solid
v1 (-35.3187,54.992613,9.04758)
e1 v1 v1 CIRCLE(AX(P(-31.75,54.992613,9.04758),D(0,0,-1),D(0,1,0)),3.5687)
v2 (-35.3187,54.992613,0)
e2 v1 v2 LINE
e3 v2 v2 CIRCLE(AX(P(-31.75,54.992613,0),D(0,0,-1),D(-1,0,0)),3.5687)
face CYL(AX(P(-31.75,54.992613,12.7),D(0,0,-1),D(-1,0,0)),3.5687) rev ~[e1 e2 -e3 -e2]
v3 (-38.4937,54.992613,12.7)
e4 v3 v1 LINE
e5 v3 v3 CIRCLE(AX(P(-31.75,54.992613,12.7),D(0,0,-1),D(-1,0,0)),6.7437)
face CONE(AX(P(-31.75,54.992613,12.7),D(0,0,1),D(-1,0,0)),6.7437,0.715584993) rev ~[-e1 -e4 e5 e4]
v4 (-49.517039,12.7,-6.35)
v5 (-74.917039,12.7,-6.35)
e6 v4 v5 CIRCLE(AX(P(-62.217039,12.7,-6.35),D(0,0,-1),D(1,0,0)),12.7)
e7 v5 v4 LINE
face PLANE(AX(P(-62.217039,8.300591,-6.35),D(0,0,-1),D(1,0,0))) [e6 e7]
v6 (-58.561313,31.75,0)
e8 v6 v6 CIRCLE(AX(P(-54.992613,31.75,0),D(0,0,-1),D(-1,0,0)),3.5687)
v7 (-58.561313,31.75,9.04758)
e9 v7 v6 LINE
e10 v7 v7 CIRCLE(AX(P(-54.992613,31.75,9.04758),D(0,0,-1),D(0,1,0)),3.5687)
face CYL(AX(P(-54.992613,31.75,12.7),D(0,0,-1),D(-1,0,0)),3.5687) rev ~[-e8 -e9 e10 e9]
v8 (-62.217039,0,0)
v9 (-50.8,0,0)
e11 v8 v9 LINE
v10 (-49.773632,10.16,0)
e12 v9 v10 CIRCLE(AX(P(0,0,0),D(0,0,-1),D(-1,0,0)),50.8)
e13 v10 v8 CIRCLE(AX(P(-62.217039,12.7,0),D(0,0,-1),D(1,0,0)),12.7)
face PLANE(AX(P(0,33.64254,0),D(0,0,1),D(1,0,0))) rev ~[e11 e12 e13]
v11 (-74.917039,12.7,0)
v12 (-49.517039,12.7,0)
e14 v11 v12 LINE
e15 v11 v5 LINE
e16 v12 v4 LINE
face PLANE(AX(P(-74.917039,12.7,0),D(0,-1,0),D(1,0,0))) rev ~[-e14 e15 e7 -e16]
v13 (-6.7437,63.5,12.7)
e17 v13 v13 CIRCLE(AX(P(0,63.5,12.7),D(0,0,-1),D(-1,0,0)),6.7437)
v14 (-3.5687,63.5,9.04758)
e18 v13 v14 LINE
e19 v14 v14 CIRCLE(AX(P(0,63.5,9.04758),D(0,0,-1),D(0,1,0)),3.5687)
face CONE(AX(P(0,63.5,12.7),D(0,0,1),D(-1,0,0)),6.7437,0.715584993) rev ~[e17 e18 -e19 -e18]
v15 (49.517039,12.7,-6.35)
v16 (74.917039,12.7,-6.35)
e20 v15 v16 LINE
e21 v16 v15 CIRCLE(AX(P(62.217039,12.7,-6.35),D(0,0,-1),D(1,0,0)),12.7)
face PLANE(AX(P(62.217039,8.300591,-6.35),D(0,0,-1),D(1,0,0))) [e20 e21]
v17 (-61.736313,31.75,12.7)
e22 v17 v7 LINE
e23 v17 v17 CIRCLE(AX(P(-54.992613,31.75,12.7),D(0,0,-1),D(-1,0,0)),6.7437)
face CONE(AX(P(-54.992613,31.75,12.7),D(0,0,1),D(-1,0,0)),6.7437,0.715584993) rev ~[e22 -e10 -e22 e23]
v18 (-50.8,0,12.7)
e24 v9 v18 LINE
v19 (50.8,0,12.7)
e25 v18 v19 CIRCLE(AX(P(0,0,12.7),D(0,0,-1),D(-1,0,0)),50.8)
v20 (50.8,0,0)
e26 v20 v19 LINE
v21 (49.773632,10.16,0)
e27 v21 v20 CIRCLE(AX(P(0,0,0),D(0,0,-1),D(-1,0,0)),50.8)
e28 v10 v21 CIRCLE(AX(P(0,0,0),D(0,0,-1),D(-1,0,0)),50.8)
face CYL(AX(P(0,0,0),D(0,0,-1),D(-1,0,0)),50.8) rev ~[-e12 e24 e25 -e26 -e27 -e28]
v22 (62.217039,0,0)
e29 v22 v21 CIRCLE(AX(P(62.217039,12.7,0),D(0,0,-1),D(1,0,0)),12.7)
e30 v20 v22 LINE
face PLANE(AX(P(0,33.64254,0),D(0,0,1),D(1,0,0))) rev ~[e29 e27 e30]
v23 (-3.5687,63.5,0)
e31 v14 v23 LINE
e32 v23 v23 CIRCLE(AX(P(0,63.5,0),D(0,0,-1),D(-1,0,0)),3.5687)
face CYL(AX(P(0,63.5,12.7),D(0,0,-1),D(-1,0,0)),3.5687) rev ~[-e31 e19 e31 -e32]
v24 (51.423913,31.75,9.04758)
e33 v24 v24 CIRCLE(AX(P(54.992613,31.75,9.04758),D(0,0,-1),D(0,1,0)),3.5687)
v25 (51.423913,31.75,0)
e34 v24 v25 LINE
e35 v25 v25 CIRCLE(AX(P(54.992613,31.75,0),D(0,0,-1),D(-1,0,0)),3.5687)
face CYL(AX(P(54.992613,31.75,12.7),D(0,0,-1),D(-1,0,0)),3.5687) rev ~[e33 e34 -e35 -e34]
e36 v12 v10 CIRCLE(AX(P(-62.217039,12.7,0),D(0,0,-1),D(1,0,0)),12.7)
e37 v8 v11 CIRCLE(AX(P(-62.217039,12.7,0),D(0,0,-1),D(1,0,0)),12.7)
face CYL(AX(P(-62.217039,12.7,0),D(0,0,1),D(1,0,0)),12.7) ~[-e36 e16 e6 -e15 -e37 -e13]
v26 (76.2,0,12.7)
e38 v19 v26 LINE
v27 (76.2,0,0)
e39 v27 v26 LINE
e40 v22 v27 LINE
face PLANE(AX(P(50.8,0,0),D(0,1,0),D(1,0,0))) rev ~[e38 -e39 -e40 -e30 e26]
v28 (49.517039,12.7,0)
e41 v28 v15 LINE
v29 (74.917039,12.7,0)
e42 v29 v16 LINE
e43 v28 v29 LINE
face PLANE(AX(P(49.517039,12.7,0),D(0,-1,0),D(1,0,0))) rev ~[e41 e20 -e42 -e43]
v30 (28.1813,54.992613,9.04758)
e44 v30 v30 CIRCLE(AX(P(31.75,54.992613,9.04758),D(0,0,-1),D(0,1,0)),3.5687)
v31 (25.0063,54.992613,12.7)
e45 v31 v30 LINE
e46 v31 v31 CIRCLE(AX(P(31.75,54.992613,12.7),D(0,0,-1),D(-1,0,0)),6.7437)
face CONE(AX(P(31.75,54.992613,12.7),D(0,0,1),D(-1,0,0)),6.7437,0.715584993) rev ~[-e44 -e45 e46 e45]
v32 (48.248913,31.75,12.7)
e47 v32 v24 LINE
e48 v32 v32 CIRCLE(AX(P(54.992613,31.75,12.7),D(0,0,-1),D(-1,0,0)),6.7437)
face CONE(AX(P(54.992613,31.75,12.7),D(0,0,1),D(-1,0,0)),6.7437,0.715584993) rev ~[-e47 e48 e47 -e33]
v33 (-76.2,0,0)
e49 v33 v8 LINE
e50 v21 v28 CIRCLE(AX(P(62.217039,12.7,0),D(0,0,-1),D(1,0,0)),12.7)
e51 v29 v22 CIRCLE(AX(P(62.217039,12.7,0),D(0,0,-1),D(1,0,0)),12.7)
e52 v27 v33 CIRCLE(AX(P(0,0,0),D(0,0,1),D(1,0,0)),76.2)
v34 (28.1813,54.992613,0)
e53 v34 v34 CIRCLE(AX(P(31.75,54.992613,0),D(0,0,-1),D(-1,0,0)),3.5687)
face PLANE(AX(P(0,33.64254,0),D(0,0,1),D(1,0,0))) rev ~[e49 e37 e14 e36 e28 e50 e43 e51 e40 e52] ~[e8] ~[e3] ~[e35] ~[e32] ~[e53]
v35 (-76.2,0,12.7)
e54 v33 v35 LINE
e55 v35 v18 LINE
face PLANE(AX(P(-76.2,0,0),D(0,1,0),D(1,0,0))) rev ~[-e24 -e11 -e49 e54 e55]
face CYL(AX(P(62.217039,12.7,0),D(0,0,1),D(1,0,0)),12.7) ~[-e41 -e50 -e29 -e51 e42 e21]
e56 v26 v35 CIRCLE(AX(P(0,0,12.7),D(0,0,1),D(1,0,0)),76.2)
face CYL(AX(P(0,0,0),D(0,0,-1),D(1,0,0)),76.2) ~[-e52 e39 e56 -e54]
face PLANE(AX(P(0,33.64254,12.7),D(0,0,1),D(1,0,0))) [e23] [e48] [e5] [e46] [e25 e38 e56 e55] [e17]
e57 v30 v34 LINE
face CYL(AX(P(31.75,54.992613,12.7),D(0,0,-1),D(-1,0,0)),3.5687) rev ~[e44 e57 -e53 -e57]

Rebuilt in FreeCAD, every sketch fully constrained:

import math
import FreeCAD as App
import Part
import Sketcher
Q = App.Units.Quantity

doc = App.newDocument("Part")
params = doc.addObject("Spreadsheet::Sheet", "Params")
for row, (alias, value) in enumerate([
    ("sketch1_radius", "2 in"),
    ("sketch1_radius2", "3 in"),
    ("pad1_length", "0.5 in"),
    ("sketch2_radius", "0.5 in"),
    ("pad2_length", "0.25 in"),
    ("sketch3_diameter", "0.281 in"),
    ("hole_diameter", "0.281 in"),
    ("hole_csink_diameter", "0.531 in"),
], start=1):
    params.set(f"A{row}", alias)
    params.set(f"B{row}", "=" + value)
    params.setAlias(f"B{row}", alias)

body = doc.addObject("PartDesign::Body", "Body")

# Sketch on XY plane
sketch1 = body.newObject("Sketcher::SketchObject", "Sketch")
sketch1.AttachmentSupport = (doc.getObject("XY_Plane"), [""])
sketch1.MapMode = "FlatFace"
sketch1.addGeometry([
    Part.LineSegment(App.Vector(-76.2, 0, 0), App.Vector(-50.8, 0, 0)),
    Part.ArcOfCircle(Part.Circle(App.Vector(0, 0, 0), App.Vector(0, 0, 1), 50.8), math.radians(0), math.radians(180)),
    Part.LineSegment(App.Vector(50.8, 0, 0), App.Vector(76.2, 0, 0)),
    Part.ArcOfCircle(Part.Circle(App.Vector(0, 0, 0), App.Vector(0, 0, 1), 76.2), math.radians(0), math.radians(180)),
], False)
sketch1.addConstraint([
    Sketcher.Constraint("Coincident", 0, 2, 1, 2),
    Sketcher.Constraint("Coincident", 1, 1, 2, 1),
    Sketcher.Constraint("Coincident", 2, 2, 3, 1),
    Sketcher.Constraint("Coincident", 3, 2, 0, 1),
    Sketcher.Constraint("Horizontal", 0),
    Sketcher.Constraint("Horizontal", 2),
    Sketcher.Constraint("Coincident", 1, 3, -1, 1),
    Sketcher.Constraint("Coincident", 3, 3, -1, 1),
    Sketcher.Constraint("PointOnObject", 0, 2, -1),
    Sketcher.Constraint("PointOnObject", 1, 1, -1),
    Sketcher.Constraint("Radius", 1, Q("2 in")),
    Sketcher.Constraint("Radius", 3, Q("3 in")),
])
sketch1.setExpression("Constraints[10]", "Params.sketch1_radius")
sketch1.setExpression("Constraints[11]", "Params.sketch1_radius2")
pad1 = body.newObject("PartDesign::Pad", "Pad")
pad1.Profile = sketch1
pad1.setExpression("Length", "Params.pad1_length")

# Sketch on XY plane
sketch2 = body.newObject("Sketcher::SketchObject", "Sketch001")
sketch2.AttachmentSupport = (doc.getObject("XY_Plane"), [""])
sketch2.MapMode = "FlatFace"
sketch2.addGeometry([
    Part.LineSegment(App.Vector(-74.917039, 12.7, 0), App.Vector(-49.517039, 12.7, 0)),
    Part.ArcOfCircle(Part.Circle(App.Vector(-62.217039, 12.7, 0), App.Vector(0, 0, 1), 12.7), math.radians(180), math.radians(360)),
    Part.ArcOfCircle(Part.Circle(App.Vector(62.217039, 12.7, 0), App.Vector(0, 0, 1), 12.7), math.radians(180), math.radians(360)),
    Part.LineSegment(App.Vector(49.517039, 12.7, 0), App.Vector(74.917039, 12.7, 0)),
], False)
sketch2.addConstraint([
    Sketcher.Constraint("Coincident", 0, 1, 1, 1),
    Sketcher.Constraint("Coincident", 1, 2, 0, 2),
    Sketcher.Constraint("Coincident", 2, 1, 3, 1),
    Sketcher.Constraint("Coincident", 3, 2, 2, 2),
    Sketcher.Constraint("Horizontal", 0),
    Sketcher.Constraint("Horizontal", 3),
    Sketcher.Constraint("Equal", 1, 2),
    Sketcher.Constraint("Symmetric", 1, 3, 2, 3, -2),
    Sketcher.Constraint("Horizontal", 2, 3, 0, 1),
    Sketcher.Constraint("Horizontal", 1, 2, 2, 1),
    Sketcher.Constraint("Radius", 1, Q("0.5 in")),
    Sketcher.Constraint("DistanceY", -1, 1, 1, 3, Q("0.5 in")),
    Sketcher.Constraint("DistanceX", 1, 3, -1, 1, Q("62.217039 mm")),
])
sketch2.setExpression("Constraints[10]", "Params.sketch2_radius")
pad2 = body.newObject("PartDesign::Pad", "Pad001")
pad2.Profile = sketch2
pad2.setExpression("Length", "Params.pad2_length")
pad2.Reversed = True

# Sketch on XY plane
sketch3 = body.newObject("Sketcher::SketchObject", "Sketch002")
sketch3.AttachmentSupport = (doc.getObject("XY_Plane"), [""])
sketch3.MapMode = "FlatFace"
sketch3.AttachmentOffset = App.Placement(App.Vector(0, 0, 0.5 * 25.4), App.Rotation())
sketch3.addGeometry([
    Part.Circle(App.Vector(-54.992613, 31.75, 0), App.Vector(0, 0, 1), 3.5687),  # 0
    Part.Circle(App.Vector(-31.75, 54.992613, 0), App.Vector(0, 0, 1), 3.5687),  # 1
    Part.Circle(App.Vector(0, 63.5, 0), App.Vector(0, 0, 1), 3.5687),  # 2
    Part.Circle(App.Vector(31.75, 54.992613, 0), App.Vector(0, 0, 1), 3.5687),  # 3
    Part.Circle(App.Vector(54.992613, 31.75, 0), App.Vector(0, 0, 1), 3.5687),  # 4
], False)
sketch3.addConstraint([
    Sketcher.Constraint("Equal", 0, 1),
    Sketcher.Constraint("Equal", 1, 2),
    Sketcher.Constraint("Equal", 2, 3),
    Sketcher.Constraint("Equal", 3, 4),
    Sketcher.Constraint("Symmetric", 1, 3, 3, 3, -2),
    Sketcher.Constraint("Symmetric", 0, 3, 4, 3, -2),
    Sketcher.Constraint("PointOnObject", 2, 3, -2),
    Sketcher.Constraint("Diameter", 0, Q("0.281 in")),
    Sketcher.Constraint("DistanceY", -1, 1, 2, 3, Q("2.5 in")),
    Sketcher.Constraint("DistanceX", 1, 3, 3, 3, Q("2.5 in")),
    Sketcher.Constraint("DistanceY", -1, 1, 0, 3, Q("1.25 in")),
    Sketcher.Constraint("DistanceX", 0, 3, -1, 1, Q("54.992613 mm")),
    Sketcher.Constraint("DistanceY", -1, 1, 1, 3, Q("54.992613 mm")),
])
sketch3.setExpression("Constraints[7]", "Params.sketch3_diameter")
doc.recompute()
hole = body.newObject("PartDesign::Hole", "Hole")
hole.Profile = sketch3
hole.ThreadType = "None"
hole.setExpression("Diameter", "Params.hole_diameter")
hole.DepthType = "ThroughAll"
hole.HoleCutType = "Countersink"
hole.setExpression("HoleCutDiameter", "Params.hole_csink_diameter")
hole.HoleCutCountersinkAngle = 82

doc.recompute()
